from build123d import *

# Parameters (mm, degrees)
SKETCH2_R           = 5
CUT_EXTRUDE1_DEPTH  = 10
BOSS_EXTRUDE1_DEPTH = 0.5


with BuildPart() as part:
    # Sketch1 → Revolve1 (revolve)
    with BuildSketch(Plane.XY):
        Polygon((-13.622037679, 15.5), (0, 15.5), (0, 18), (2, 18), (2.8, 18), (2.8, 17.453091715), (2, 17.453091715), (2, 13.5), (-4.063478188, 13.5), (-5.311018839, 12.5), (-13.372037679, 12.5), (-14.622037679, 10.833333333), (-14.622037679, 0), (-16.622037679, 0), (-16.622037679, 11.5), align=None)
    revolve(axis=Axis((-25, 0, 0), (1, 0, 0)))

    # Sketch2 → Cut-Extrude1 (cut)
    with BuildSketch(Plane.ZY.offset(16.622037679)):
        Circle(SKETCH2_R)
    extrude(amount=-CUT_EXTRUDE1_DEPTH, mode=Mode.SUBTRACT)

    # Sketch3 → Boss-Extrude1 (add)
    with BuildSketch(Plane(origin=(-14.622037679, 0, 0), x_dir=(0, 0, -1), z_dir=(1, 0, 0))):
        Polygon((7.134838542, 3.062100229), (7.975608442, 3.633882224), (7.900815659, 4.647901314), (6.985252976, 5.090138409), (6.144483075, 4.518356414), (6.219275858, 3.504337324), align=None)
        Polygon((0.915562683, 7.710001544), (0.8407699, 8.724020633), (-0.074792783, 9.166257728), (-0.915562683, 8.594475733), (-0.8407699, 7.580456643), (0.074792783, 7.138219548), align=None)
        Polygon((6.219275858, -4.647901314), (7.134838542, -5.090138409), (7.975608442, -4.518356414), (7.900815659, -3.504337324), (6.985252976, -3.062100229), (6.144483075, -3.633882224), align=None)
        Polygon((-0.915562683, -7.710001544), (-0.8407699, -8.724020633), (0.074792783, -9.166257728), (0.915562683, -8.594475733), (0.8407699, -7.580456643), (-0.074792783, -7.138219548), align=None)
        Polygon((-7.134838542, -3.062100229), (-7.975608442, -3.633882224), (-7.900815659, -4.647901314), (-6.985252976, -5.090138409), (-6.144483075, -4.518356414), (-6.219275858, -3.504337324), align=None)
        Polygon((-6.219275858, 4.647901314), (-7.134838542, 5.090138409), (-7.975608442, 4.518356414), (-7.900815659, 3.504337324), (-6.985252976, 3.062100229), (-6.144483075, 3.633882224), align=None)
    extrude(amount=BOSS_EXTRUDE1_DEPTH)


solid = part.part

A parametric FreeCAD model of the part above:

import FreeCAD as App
import Part
import Sketcher
from FreeCAD import Vector
Q = App.Units.Quantity

doc = App.newDocument("Part")
body = doc.addObject("PartDesign::Body", "Body")

# Sketch on XY plane
sketch1 = doc.addObject("Sketcher::SketchObject", "Sketch")
body.addObject(sketch1)
sketch1.AttachmentSupport = (doc.XY_Plane, [""])
sketch1.MapMode = "FlatFace"
sketch1.addGeometry([
    Part.LineSegment(Vector(0, 15.5, 0), Vector(-13.622038, 15.5, 0)),  # 0
    Part.LineSegment(Vector(-13.622038, 15.5, 0), Vector(-16.622038, 11.5, 0)),  # 1
    Part.LineSegment(Vector(-16.622038, 11.5, 0), Vector(-16.622038, 0, 0)),  # 2
    Part.LineSegment(Vector(-16.622038, 0, 0), Vector(-14.622038, 0, 0)),  # 3
    Part.LineSegment(Vector(-14.622038, 0, 0), Vector(-14.622038, 10.833333, 0)),  # 4
    Part.LineSegment(Vector(-14.622038, 10.833333, 0), Vector(-13.372038, 12.5, 0)),  # 5
    Part.LineSegment(Vector(-13.372038, 12.5, 0), Vector(-5.311019, 12.5, 0)),  # 6
    Part.LineSegment(Vector(-5.311019, 12.5, 0), Vector(-4.063478, 13.5, 0)),  # 7
    Part.LineSegment(Vector(-4.063478, 13.5, 0), Vector(2, 13.5, 0)),  # 8
    Part.LineSegment(Vector(2, 13.5, 0), Vector(2, 17.453092, 0)),  # 9
    Part.LineSegment(Vector(2, 17.453092, 0), Vector(2.8, 17.453092, 0)),  # 10
    Part.LineSegment(Vector(2.8, 17.453092, 0), Vector(2.8, 18, 0)),  # 11
    Part.LineSegment(Vector(2.8, 18, 0), Vector(0, 18, 0)),  # 12
    Part.LineSegment(Vector(0, 18, 0), Vector(0, 15.5, 0)),  # 13
], False)
sketch1.addConstraint([
    Sketcher.Constraint("Coincident", 0, 2, 1, 1),
    Sketcher.Constraint("Coincident", 1, 2, 2, 1),
    Sketcher.Constraint("Coincident", 2, 2, 3, 1),
    Sketcher.Constraint("Coincident", 3, 2, 4, 1),
    Sketcher.Constraint("Coincident", 4, 2, 5, 1),
    Sketcher.Constraint("Coincident", 5, 2, 6, 1),
    Sketcher.Constraint("Coincident", 6, 2, 7, 1),
    Sketcher.Constraint("Coincident", 7, 2, 8, 1),
    Sketcher.Constraint("Coincident", 8, 2, 9, 1),
    Sketcher.Constraint("Coincident", 9, 2, 10, 1),
    Sketcher.Constraint("Coincident", 10, 2, 11, 1),
    Sketcher.Constraint("Coincident", 11, 2, 12, 1),
    Sketcher.Constraint("Coincident", 12, 2, 13, 1),
    Sketcher.Constraint("Coincident", 13, 2, 0, 1),
    Sketcher.Constraint("Horizontal", 0),
    Sketcher.Constraint("Vertical", 2),
    Sketcher.Constraint("Horizontal", 3),
    Sketcher.Constraint("Vertical", 4),
    Sketcher.Constraint("Horizontal", 6),
    Sketcher.Constraint("Horizontal", 8),
    Sketcher.Constraint("Vertical", 9),
    Sketcher.Constraint("Horizontal", 10),
    Sketcher.Constraint("Vertical", 11),
    Sketcher.Constraint("Horizontal", 12),
    Sketcher.Constraint("Vertical", 13),
    Sketcher.Constraint("PointOnObject", 2, 2, -1),
    Sketcher.Constraint("PointOnObject", 12, 2, -2),
    Sketcher.Constraint("Parallel", 1, 5),
    Sketcher.Constraint("DistanceX", 3, 1, 3, 2, Q("2 mm")),
    Sketcher.Constraint("Distance", 1, Q("5 mm")),
    Sketcher.Constraint("DistanceX", 10, 1, 10, 2, Q("0.8 mm")),
    Sketcher.Constraint("DistanceX", 12, 2, 12, 1, Q("2.8 mm")),
    Sketcher.Constraint("DistanceY", 2, 2, 2, 1, Q("11.5 mm")),
    Sketcher.Constraint("DistanceY", 13, 2, 13, 1, Q("2.5 mm")),
    Sketcher.Constraint("DistanceY", -1, 1, 11, 2, Q("18 mm")),
    Sketcher.Constraint("DistanceY", 5, 2, 0, 2, Q("3 mm")),
    Sketcher.Constraint("DistanceY", 6, 2, 7, 2, Q("1 mm")),
    Sketcher.Constraint("DistanceX", 4, 2, 5, 2, Q("1.25 mm")),
    Sketcher.Constraint("DistanceX", 6, 1, 6, 2, Q("8.061019 mm")),
    Sketcher.Constraint("DistanceX", 8, 1, 8, 2, Q("6.063478 mm")),
    Sketcher.Constraint("DistanceY", 9, 1, 9, 2, Q("3.953092 mm")),
    Sketcher.Constraint("Distance", 7, Q("1.598861 mm")),
])
revolution = doc.addObject("PartDesign::Revolution", "Revolution")
body.addObject(revolution)
revolution.Profile = sketch1
revolution.ReferenceAxis = (sketch1, ["H_Axis"])
revolution.Angle = 360

# Sketch on YZ plane
sketch2 = doc.addObject("Sketcher::SketchObject", "Sketch001")
body.addObject(sketch2)
sketch2.AttachmentSupport = (doc.YZ_Plane, [""])
sketch2.MapMode = "FlatFace"
sketch2.AttachmentOffset = App.Placement(Vector(0, 0, -16.622038), App.Rotation())
sketch2.addGeometry(Part.Circle(Vector(0, 0, 0), Vector(0, 0, 1), 5), False)
sketch2.addConstraint([
    Sketcher.Constraint("Coincident", 0, 3, -1, 1),
    Sketcher.Constraint("Diameter", 0, Q("10 mm")),
])
pocket1 = doc.addObject("PartDesign::Pocket", "Pocket")
body.addObject(pocket1)
pocket1.Profile = sketch2
pocket1.Length = 10
pocket1.Reversed = True

# Sketch on YZ plane
sketch3 = doc.addObject("Sketcher::SketchObject", "Sketch002")
body.addObject(sketch3)
sketch3.AttachmentSupport = (doc.YZ_Plane, [""])
sketch3.MapMode = "FlatFace"
sketch3.AttachmentOffset = App.Placement(Vector(0, 0, -14.622038), App.Rotation())
sketch3.addGeometry([
    Part.LineSegment(Vector(3.0621, -7.134839, 0), Vector(3.633882, -7.975608, 0)),  # 0
    Part.LineSegment(Vector(3.633882, -7.975608, 0), Vector(4.647901, -7.900816, 0)),  # 1
    Part.LineSegment(Vector(4.647901, -7.900816, 0), Vector(5.090138, -6.985253, 0)),  # 2
    Part.LineSegment(Vector(5.090138, -6.985253, 0), Vector(4.518356, -6.144483, 0)),  # 3
    Part.LineSegment(Vector(4.518356, -6.144483, 0), Vector(3.504337, -6.219276, 0)),  # 4
    Part.LineSegment(Vector(3.504337, -6.219276, 0), Vector(3.0621, -7.134839, 0)),  # 5
    Part.LineSegment(Vector(7.710002, -0.915563, 0), Vector(8.724021, -0.84077, 0)),  # 6
    Part.LineSegment(Vector(8.724021, -0.84077, 0), Vector(9.166258, 0.074793, 0)),  # 7
    Part.LineSegment(Vector(9.166258, 0.074793, 0), Vector(8.594476, 0.915563, 0)),  # 8
    Part.LineSegment(Vector(8.594476, 0.915563, 0), Vector(7.580457, 0.84077, 0)),  # 9
    Part.LineSegment(Vector(7.580457, 0.84077, 0), Vector(7.13822, -0.074793, 0)),  # 10
    Part.LineSegment(Vector(7.13822, -0.074793, 0), Vector(7.710002, -0.915563, 0)),  # 11
    Part.LineSegment(Vector(-4.647901, -6.219276, 0), Vector(-5.090138, -7.134839, 0)),  # 12
    Part.LineSegment(Vector(-5.090138, -7.134839, 0), Vector(-4.518356, -7.975608, 0)),  # 13
    Part.LineSegment(Vector(-4.518356, -7.975608, 0), Vector(-3.504337, -7.900816, 0)),  # 14
    Part.LineSegment(Vector(-3.504337, -7.900816, 0), Vector(-3.0621, -6.985253, 0)),  # 15
    Part.LineSegment(Vector(-3.0621, -6.985253, 0), Vector(-3.633882, -6.144483, 0)),  # 16
    Part.LineSegment(Vector(-3.633882, -6.144483, 0), Vector(-4.647901, -6.219276, 0)),  # 17
    Part.LineSegment(Vector(-7.710002, 0.915563, 0), Vector(-8.724021, 0.84077, 0)),  # 18
    Part.LineSegment(Vector(-8.724021, 0.84077, 0), Vector(-9.166258, -0.074793, 0)),  # 19
    Part.LineSegment(Vector(-9.166258, -0.074793, 0), Vector(-8.594476, -0.915563, 0)),  # 20
    Part.LineSegment(Vector(-8.594476, -0.915563, 0), Vector(-7.580457, -0.84077, 0)),  # 21
    Part.LineSegment(Vector(-7.580457, -0.84077, 0), Vector(-7.13822, 0.074793, 0)),  # 22
    Part.LineSegment(Vector(-7.13822, 0.074793, 0), Vector(-7.710002, 0.915563, 0)),  # 23
    Part.LineSegment(Vector(-3.0621, 7.134839, 0), Vector(-3.633882, 7.975608, 0)),  # 24
    Part.LineSegment(Vector(-3.633882, 7.975608, 0), Vector(-4.647901, 7.900816, 0)),  # 25
    Part.LineSegment(Vector(-4.647901, 7.900816, 0), Vector(-5.090138, 6.985253, 0)),  # 26
    Part.LineSegment(Vector(-5.090138, 6.985253, 0), Vector(-4.518356, 6.144483, 0)),  # 27
    Part.LineSegment(Vector(-4.518356, 6.144483, 0), Vector(-3.504337, 6.219276, 0)),  # 28
    Part.LineSegment(Vector(-3.504337, 6.219276, 0), Vector(-3.0621, 7.134839, 0)),  # 29
    Part.LineSegment(Vector(4.647901, 6.219276, 0), Vector(5.090138, 7.134839, 0)),  # 30
    Part.LineSegment(Vector(5.090138, 7.134839, 0), Vector(4.518356, 7.975608, 0)),  # 31
    Part.LineSegment(Vector(4.518356, 7.975608, 0), Vector(3.504337, 7.900816, 0)),  # 32
    Part.LineSegment(Vector(3.504337, 7.900816, 0), Vector(3.0621, 6.985253, 0)),  # 33
    Part.LineSegment(Vector(3.0621, 6.985253, 0), Vector(3.633882, 6.144483, 0)),  # 34
    Part.LineSegment(Vector(3.633882, 6.144483, 0), Vector(4.647901, 6.219276, 0)),  # 35
], False)
sketch3.addConstraint([
    Sketcher.Constraint("Coincident", 0, 2, 1, 1),
    Sketcher.Constraint("Coincident", 1, 2, 2, 1),
    Sketcher.Constraint("Coincident", 2, 2, 3, 1),
    Sketcher.Constraint("Coincident", 3, 2, 4, 1),
    Sketcher.Constraint("Coincident", 4, 2, 5, 1),
    Sketcher.Constraint("Coincident", 5, 2, 0, 1),
    Sketcher.Constraint("Coincident", 6, 2, 7, 1),
    Sketcher.Constraint("Coincident", 7, 2, 8, 1),
    Sketcher.Constraint("Coincident", 8, 2, 9, 1),
    Sketcher.Constraint("Coincident", 9, 2, 10, 1),
    Sketcher.Constraint("Coincident", 10, 2, 11, 1),
    Sketcher.Constraint("Coincident", 11, 2, 6, 1),
    Sketcher.Constraint("Coincident", 12, 2, 13, 1),
    Sketcher.Constraint("Coincident", 13, 2, 14, 1),
    Sketcher.Constraint("Coincident", 14, 2, 15, 1),
    Sketcher.Constraint("Coincident", 15, 2, 16, 1),
    Sketcher.Constraint("Coincident", 16, 2, 17, 1),
    Sketcher.Constraint("Coincident", 17, 2, 12, 1),
    Sketcher.Constraint("Coincident", 18, 2, 19, 1),
    Sketcher.Constraint("Coincident", 19, 2, 20, 1),
    Sketcher.Constraint("Coincident", 20, 2, 21, 1),
    Sketcher.Constraint("Coincident", 21, 2, 22, 1),
    Sketcher.Constraint("Coincident", 22, 2, 23, 1),
    Sketcher.Constraint("Coincident", 23, 2, 18, 1),
    Sketcher.Constraint("Coincident", 24, 2, 25, 1),
    Sketcher.Constraint("Coincident", 25, 2, 26, 1),
    Sketcher.Constraint("Coincident", 26, 2, 27, 1),
    Sketcher.Constraint("Coincident", 27, 2, 28, 1),
    Sketcher.Constraint("Coincident", 28, 2, 29, 1),
    Sketcher.Constraint("Coincident", 29, 2, 24, 1),
    Sketcher.Constraint("Coincident", 30, 2, 31, 1),
    Sketcher.Constraint("Coincident", 31, 2, 32, 1),
    Sketcher.Constraint("Coincident", 32, 2, 33, 1),
    Sketcher.Constraint("Coincident", 33, 2, 34, 1),
    Sketcher.Constraint("Coincident", 34, 2, 35, 1),
    Sketcher.Constraint("Coincident", 35, 2, 30, 1),
    Sketcher.Constraint("Symmetric", 6, 2, 18, 2, -1, 1),
    Sketcher.Constraint("Symmetric", 7, 2, 19, 2, -1, 1),
    Sketcher.Constraint("Symmetric", 8, 2, 20, 2, -1, 1),
    Sketcher.Constraint("Symmetric", 9, 2, 21, 2, -1, 1),
    Sketcher.Constraint("Symmetric", 10, 2, 22, 2, -1, 1),
    Sketcher.Constraint("Symmetric", 11, 2, 23, 2, -1, 1),
    Sketcher.Constraint("Symmetric", 0, 2, 24, 2, -1, 1),
    Sketcher.Constraint("Symmetric", 1, 2, 25, 2, -1, 1),
    Sketcher.Constraint("Symmetric", 2, 2, 26, 2, -1, 1),
    Sketcher.Constraint("Symmetric", 3, 2, 27, 2, -1, 1),
    Sketcher.Constraint("Symmetric", 4, 2, 28, 2, -1, 1),
    Sketcher.Constraint("Symmetric", 5, 2, 29, 2, -1, 1),
    Sketcher.Constraint("Symmetric", 12, 2, 30, 2, -1, 1),
    Sketcher.Constraint("Symmetric", 13, 2, 31, 2, -1, 1),
    Sketcher.Constraint("Symmetric", 14, 2, 32, 2, -1, 1),
    Sketcher.Constraint("Symmetric", 15, 2, 33, 2, -1, 1),
    Sketcher.Constraint("Symmetric", 16, 2, 34, 2, -1, 1),
    Sketcher.Constraint("Symmetric", 17, 2, 35, 2, -1, 1),
    Sketcher.Constraint("Parallel", 0, 3),
    Sketcher.Constraint("Parallel", 1, 4),
    Sketcher.Constraint("Parallel", 2, 5),
    Sketcher.Constraint("Parallel", 4, 6),
    Sketcher.Constraint("Parallel", 5, 7),
    Sketcher.Constraint("Parallel", 3, 8),
    Sketcher.Constraint("Parallel", 6, 9),
    Sketcher.Constraint("Parallel", 7, 10),
    Sketcher.Constraint("Parallel", 8, 11),
    Sketcher.Constraint("Parallel", 10, 12),
    Sketcher.Constraint("Parallel", 11, 13),
    Sketcher.Constraint("Parallel", 9, 14),
    Sketcher.Constraint("Parallel", 12, 15),
    Sketcher.Constraint("Parallel", 13, 16),
    Sketcher.Constraint("Parallel", 14, 17),
    Sketcher.Constraint("Horizontal", 5, 2, 12, 2),
    Sketcher.Constraint("Horizontal", 0, 2, 13, 2),
    Sketcher.Constraint("Horizontal", 1, 2, 14, 2),
    Sketcher.Constraint("Horizontal", 2, 2, 15, 2),
    Sketcher.Constraint("Horizontal", 3, 2, 16, 2),
    Sketcher.Constraint("Horizontal", 9, 2, 18, 2),
    Sketcher.Constraint("Horizontal", 10, 2, 19, 2),
    Sketcher.Constraint("Vertical", 16, 2, 24, 2),
    Sketcher.Constraint("Vertical", 17, 2, 25, 2),
    Sketcher.Constraint("Equal", 0, 1),
    Sketcher.Constraint("Equal", 1, 2),
    Sketcher.Constraint("Equal", 5, 6),
    Sketcher.Constraint("Equal", 6, 7),
    Sketcher.Constraint("Equal", 7, 8),
    Sketcher.Constraint("DistanceX", -1, 1, 11, 2, Q("7.710002 mm")),
    Sketcher.Constraint("DistanceX", -1, 1, 1, 2, Q("4.647901 mm")),
    Sketcher.Constraint("DistanceX", -1, 1, 5, 2, Q("3.0621 mm")),
    Sketcher.Constraint("DistanceY", 19, 2, 24, 2, Q("8.050401 mm")),
    Sketcher.Constraint("DistanceY", 0, 2, -1, 1, Q("7.975608 mm")),
    Sketcher.Constraint("DistanceX", -1, 1, 2, 2, Q("5.090138 mm")),
    Sketcher.Constraint("DistanceY", 5, 2, -1, 1, Q("7.134839 mm")),
])
pad1 = doc.addObject("PartDesign::Pad", "Pad")
body.addObject(pad1)
pad1.Profile = sketch3
pad1.Length = 0.5

doc.recompute()
